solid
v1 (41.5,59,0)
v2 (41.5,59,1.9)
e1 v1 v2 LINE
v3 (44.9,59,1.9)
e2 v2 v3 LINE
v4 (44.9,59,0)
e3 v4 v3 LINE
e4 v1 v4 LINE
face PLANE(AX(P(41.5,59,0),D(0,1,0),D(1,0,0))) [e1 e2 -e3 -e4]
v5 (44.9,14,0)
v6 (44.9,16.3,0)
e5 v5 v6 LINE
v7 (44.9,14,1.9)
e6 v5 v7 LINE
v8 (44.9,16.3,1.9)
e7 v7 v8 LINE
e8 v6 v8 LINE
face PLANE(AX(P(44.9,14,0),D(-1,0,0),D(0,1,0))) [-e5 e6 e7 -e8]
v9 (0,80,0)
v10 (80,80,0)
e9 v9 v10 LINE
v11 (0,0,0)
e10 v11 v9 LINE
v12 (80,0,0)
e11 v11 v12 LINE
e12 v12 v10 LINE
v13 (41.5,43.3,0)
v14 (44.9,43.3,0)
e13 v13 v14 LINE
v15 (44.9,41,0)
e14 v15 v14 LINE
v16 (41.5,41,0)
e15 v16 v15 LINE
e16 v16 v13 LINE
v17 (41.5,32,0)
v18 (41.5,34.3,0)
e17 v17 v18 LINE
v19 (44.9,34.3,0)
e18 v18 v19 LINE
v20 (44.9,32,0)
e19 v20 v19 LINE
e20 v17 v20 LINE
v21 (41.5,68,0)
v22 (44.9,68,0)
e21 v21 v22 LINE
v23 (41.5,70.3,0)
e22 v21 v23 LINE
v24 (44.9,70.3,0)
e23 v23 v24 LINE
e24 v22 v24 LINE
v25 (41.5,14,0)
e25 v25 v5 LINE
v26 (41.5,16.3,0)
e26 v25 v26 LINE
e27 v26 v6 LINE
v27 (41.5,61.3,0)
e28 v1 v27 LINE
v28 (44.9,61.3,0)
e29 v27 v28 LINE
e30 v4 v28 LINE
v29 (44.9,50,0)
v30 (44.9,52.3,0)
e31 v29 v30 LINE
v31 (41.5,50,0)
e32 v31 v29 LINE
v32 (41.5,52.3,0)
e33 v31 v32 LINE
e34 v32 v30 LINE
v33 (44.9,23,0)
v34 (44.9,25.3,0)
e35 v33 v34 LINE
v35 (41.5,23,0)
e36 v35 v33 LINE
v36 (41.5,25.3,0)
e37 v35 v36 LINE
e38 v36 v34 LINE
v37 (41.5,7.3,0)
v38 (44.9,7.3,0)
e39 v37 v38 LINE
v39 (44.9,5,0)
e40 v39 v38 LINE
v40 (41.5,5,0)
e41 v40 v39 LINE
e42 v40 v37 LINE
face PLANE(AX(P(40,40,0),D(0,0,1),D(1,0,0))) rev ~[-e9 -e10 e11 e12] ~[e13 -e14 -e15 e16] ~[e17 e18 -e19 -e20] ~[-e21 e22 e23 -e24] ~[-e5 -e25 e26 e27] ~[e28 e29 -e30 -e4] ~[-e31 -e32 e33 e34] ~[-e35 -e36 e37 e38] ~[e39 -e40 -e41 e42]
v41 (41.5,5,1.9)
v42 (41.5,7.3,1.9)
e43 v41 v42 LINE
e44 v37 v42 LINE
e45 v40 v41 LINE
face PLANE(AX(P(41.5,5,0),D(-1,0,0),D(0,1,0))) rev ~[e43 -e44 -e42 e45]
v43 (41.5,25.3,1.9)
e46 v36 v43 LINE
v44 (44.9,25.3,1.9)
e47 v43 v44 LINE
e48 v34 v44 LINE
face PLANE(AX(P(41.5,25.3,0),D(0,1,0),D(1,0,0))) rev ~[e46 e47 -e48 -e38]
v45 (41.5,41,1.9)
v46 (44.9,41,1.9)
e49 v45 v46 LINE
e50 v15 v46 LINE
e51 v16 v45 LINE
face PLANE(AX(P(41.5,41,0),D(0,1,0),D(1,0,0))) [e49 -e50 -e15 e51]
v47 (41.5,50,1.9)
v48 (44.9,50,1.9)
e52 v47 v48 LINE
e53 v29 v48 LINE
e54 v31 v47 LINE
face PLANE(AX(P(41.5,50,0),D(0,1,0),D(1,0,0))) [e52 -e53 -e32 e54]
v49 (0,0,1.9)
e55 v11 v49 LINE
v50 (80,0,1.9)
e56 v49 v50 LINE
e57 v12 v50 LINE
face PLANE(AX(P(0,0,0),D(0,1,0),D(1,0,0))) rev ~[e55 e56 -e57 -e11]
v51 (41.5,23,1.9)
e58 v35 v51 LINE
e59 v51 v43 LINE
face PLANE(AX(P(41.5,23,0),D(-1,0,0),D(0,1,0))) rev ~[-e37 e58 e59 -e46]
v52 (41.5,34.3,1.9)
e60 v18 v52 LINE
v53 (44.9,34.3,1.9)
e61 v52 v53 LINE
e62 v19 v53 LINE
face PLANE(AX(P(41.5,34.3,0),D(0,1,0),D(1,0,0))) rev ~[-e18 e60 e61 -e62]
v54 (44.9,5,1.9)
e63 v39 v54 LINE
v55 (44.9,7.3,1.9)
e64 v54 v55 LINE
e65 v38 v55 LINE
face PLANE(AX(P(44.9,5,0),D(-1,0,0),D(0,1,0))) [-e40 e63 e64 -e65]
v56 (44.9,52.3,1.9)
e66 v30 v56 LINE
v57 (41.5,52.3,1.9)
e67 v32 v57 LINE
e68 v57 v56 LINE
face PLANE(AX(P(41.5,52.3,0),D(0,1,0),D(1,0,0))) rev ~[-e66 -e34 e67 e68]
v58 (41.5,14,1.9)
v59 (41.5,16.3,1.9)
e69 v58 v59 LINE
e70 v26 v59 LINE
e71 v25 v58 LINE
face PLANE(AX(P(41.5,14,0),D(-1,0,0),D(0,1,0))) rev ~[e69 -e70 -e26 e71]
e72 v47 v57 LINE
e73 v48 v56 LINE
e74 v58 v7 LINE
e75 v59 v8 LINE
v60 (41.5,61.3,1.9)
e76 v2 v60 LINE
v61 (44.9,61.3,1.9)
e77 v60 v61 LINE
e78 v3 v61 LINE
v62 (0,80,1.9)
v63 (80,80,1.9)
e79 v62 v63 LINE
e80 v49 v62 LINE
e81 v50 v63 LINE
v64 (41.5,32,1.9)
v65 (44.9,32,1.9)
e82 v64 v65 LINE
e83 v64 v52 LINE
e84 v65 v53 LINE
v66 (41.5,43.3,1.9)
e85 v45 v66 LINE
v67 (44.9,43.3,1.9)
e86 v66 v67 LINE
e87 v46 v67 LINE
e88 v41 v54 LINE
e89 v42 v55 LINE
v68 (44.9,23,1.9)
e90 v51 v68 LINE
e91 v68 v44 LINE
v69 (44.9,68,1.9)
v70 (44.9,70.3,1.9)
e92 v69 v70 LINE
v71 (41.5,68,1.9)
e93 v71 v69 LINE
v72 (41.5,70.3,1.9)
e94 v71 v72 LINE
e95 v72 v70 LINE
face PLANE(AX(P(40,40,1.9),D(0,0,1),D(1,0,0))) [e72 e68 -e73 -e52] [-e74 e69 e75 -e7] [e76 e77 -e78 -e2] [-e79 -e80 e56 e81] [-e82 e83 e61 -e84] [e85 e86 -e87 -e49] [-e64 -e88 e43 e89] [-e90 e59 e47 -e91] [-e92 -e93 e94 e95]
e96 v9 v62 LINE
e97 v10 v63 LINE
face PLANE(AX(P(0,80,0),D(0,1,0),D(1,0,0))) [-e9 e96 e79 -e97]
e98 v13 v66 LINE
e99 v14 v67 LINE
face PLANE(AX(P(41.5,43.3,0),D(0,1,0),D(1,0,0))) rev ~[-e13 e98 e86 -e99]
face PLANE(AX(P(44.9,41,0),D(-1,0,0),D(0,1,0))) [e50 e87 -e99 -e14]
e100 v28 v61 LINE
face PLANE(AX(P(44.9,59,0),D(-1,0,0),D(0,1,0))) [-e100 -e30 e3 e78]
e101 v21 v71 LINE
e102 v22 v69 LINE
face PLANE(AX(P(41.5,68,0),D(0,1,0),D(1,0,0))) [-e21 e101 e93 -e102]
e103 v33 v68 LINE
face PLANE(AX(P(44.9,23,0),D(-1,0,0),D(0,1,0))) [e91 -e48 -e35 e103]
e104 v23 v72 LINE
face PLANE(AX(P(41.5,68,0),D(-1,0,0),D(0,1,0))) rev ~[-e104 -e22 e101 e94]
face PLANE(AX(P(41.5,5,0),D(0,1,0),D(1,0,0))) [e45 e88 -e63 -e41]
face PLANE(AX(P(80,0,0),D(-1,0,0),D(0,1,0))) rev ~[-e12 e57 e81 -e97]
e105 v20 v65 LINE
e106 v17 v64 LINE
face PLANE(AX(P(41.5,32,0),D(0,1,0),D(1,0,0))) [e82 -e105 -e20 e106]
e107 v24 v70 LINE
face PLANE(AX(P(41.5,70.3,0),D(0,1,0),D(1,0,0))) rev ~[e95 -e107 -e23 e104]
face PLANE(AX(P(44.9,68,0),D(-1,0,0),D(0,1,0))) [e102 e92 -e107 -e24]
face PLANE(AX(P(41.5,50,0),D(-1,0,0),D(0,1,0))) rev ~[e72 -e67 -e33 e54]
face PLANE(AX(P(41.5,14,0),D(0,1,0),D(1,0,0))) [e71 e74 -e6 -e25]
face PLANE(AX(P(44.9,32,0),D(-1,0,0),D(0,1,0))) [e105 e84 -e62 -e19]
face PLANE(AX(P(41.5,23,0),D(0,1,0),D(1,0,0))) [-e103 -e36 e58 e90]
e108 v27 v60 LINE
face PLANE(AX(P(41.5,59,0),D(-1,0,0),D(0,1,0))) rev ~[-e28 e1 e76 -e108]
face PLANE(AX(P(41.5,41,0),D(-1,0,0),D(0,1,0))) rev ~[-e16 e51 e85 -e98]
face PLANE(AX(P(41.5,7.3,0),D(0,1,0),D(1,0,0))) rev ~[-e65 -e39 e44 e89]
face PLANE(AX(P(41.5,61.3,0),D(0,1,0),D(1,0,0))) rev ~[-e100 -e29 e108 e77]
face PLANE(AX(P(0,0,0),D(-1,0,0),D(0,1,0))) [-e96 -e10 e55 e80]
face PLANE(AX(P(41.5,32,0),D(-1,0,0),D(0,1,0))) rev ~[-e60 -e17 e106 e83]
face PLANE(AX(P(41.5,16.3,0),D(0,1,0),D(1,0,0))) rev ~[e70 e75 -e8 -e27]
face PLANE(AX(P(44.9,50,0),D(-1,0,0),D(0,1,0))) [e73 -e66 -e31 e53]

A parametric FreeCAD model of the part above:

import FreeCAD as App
import Part
import Sketcher

V = App.Vector


def add_polygon(sketch, points):
    """Adds a closed chain of lines whose ends are joined by coincident constraints."""
    first, n = sketch.GeometryCount, len(points)
    for a, b in zip(points, points[1:] + points[:1]):
        sketch.addGeometry(Part.LineSegment(App.Vector(*a, 0), App.Vector(*b, 0)), False)
    for i in range(n):
        sketch.addConstraint(Sketcher.Constraint("Coincident", first + i, 2, first + (i + 1) % n, 1))

doc = App.newDocument("Part")
body = doc.addObject("PartDesign::Body", "Body")

# Sketch on XY plane
sketch1 = doc.addObject("Sketcher::SketchObject", "Sketch")
body.addObject(sketch1)
sketch1.AttachmentSupport = (doc.XY_Plane, [""])
sketch1.MapMode = "FlatFace"
add_polygon(sketch1, [(0, 80), (0, 0), (80, 0), (80, 80)])  # lines 0-3
add_polygon(sketch1, [(44.9, 5), (41.5, 5), (41.5, 7.3), (44.9, 7.3)])  # lines 4-7
add_polygon(sketch1, [(44.9, 14), (41.5, 14), (41.5, 16.3), (44.9, 16.3)])  # lines 8-11
add_polygon(sketch1, [(44.9, 23), (41.5, 23), (41.5, 25.3), (44.9, 25.3)])  # lines 12-15
add_polygon(sketch1, [(44.9, 32), (41.5, 32), (41.5, 34.3), (44.9, 34.3)])  # lines 16-19
add_polygon(sketch1, [(44.9, 41), (41.5, 41), (41.5, 43.3), (44.9, 43.3)])  # lines 20-23
add_polygon(sketch1, [(44.9, 50), (41.5, 50), (41.5, 52.3), (44.9, 52.3)])  # lines 24-27
add_polygon(sketch1, [(44.9, 59), (41.5, 59), (41.5, 61.3), (44.9, 61.3)])  # lines 28-31
add_polygon(sketch1, [(44.9, 68), (41.5, 68), (41.5, 70.3), (44.9, 70.3)])  # lines 32-35
sketch1.addConstraint([
    Sketcher.Constraint("Vertical", 0),
    Sketcher.Constraint("Horizontal", 1),
    Sketcher.Constraint("Vertical", 2),
    Sketcher.Constraint("Horizontal", 3),
    Sketcher.Constraint("Horizontal", 4),
    Sketcher.Constraint("Vertical", 5),
    Sketcher.Constraint("Horizontal", 6),
    Sketcher.Constraint("Vertical", 7),
    Sketcher.Constraint("Horizontal", 8),
    Sketcher.Constraint("Vertical", 9),
    Sketcher.Constraint("Horizontal", 10),
    Sketcher.Constraint("Vertical", 11),
    Sketcher.Constraint("Horizontal", 12),
    Sketcher.Constraint("Vertical", 13),
    Sketcher.Constraint("Horizontal", 14),
    Sketcher.Constraint("Vertical", 15),
    Sketcher.Constraint("Horizontal", 16),
    Sketcher.Constraint("Vertical", 17),
    Sketcher.Constraint("Horizontal", 18),
    Sketcher.Constraint("Vertical", 19),
    Sketcher.Constraint("Horizontal", 20),
    Sketcher.Constraint("Vertical", 21),
    Sketcher.Constraint("Horizontal", 22),
    Sketcher.Constraint("Vertical", 23),
    Sketcher.Constraint("Horizontal", 24),
    Sketcher.Constraint("Vertical", 25),
    Sketcher.Constraint("Horizontal", 26),
    Sketcher.Constraint("Vertical", 27),
    Sketcher.Constraint("Horizontal", 28),
    Sketcher.Constraint("Vertical", 29),
    Sketcher.Constraint("Horizontal", 30),
    Sketcher.Constraint("Vertical", 31),
    Sketcher.Constraint("Horizontal", 32),
    Sketcher.Constraint("Vertical", 33),
    Sketcher.Constraint("Horizontal", 34),
    Sketcher.Constraint("Vertical", 35),
    Sketcher.Constraint("Coincident", 0, 2, -1, 1),
    Sketcher.Constraint("Vertical", 5, 2, 8, 2),
    Sketcher.Constraint("Vertical", 7, 2, 10, 2),
    Sketcher.Constraint("Vertical", 9, 2, 12, 2),
    Sketcher.Constraint("Vertical", 11, 2, 14, 2),
    Sketcher.Constraint("Vertical", 13, 2, 16, 2),
    Sketcher.Constraint("Vertical", 15, 2, 18, 2),
    Sketcher.Constraint("Vertical", 17, 2, 20, 2),
    Sketcher.Constraint("Vertical", 19, 2, 22, 2),
    Sketcher.Constraint("Vertical", 21, 2, 24, 2),
    Sketcher.Constraint("Vertical", 23, 2, 26, 2),
    Sketcher.Constraint("Vertical", 25, 2, 28, 2),
    Sketcher.Constraint("Vertical", 27, 2, 30, 2),
    Sketcher.Constraint("Vertical", 29, 2, 32, 2),
    Sketcher.Constraint("Vertical", 31, 2, 34, 2),
    Sketcher.Constraint("Equal", 3, 0),
    Sketcher.Constraint("Equal", 7, 9),
    Sketcher.Constraint("Equal", 11, 13),
    Sketcher.Constraint("Equal", 15, 17),
    Sketcher.Constraint("Equal", 19, 21),
    Sketcher.Constraint("Equal", 23, 25),
    Sketcher.Constraint("Equal", 27, 29),
    Sketcher.Constraint("Equal", 31, 33),
    Sketcher.Constraint("DistanceX", 1, 1, 1, 2, 80.0),
    Sketcher.Constraint("DistanceX", 4, 2, 4, 1, 3.4),
    Sketcher.Constraint("DistanceY", 5, 1, 5, 2, 2.3),
    Sketcher.Constraint("DistanceY", -1, 1, 4, 2, 5.0),
    Sketcher.Constraint("DistanceY", -1, 1, 8, 2, 14.0),
    Sketcher.Constraint("DistanceY", -1, 1, 12, 2, 23.0),
    Sketcher.Constraint("DistanceY", -1, 1, 16, 2, 32.0),
    Sketcher.Constraint("DistanceY", -1, 1, 20, 2, 41.0),
    Sketcher.Constraint("DistanceY", -1, 1, 24, 2, 50.0),
    Sketcher.Constraint("DistanceY", -1, 1, 28, 2, 59.0),
    Sketcher.Constraint("DistanceY", -1, 1, 32, 2, 68.0),
    Sketcher.Constraint("DistanceX", -1, 1, 4, 2, 41.5),
])
pad1 = doc.addObject("PartDesign::Pad", "Pad")
body.addObject(pad1)
pad1.Profile = sketch1
pad1.Length = 1.9

doc.recompute()
